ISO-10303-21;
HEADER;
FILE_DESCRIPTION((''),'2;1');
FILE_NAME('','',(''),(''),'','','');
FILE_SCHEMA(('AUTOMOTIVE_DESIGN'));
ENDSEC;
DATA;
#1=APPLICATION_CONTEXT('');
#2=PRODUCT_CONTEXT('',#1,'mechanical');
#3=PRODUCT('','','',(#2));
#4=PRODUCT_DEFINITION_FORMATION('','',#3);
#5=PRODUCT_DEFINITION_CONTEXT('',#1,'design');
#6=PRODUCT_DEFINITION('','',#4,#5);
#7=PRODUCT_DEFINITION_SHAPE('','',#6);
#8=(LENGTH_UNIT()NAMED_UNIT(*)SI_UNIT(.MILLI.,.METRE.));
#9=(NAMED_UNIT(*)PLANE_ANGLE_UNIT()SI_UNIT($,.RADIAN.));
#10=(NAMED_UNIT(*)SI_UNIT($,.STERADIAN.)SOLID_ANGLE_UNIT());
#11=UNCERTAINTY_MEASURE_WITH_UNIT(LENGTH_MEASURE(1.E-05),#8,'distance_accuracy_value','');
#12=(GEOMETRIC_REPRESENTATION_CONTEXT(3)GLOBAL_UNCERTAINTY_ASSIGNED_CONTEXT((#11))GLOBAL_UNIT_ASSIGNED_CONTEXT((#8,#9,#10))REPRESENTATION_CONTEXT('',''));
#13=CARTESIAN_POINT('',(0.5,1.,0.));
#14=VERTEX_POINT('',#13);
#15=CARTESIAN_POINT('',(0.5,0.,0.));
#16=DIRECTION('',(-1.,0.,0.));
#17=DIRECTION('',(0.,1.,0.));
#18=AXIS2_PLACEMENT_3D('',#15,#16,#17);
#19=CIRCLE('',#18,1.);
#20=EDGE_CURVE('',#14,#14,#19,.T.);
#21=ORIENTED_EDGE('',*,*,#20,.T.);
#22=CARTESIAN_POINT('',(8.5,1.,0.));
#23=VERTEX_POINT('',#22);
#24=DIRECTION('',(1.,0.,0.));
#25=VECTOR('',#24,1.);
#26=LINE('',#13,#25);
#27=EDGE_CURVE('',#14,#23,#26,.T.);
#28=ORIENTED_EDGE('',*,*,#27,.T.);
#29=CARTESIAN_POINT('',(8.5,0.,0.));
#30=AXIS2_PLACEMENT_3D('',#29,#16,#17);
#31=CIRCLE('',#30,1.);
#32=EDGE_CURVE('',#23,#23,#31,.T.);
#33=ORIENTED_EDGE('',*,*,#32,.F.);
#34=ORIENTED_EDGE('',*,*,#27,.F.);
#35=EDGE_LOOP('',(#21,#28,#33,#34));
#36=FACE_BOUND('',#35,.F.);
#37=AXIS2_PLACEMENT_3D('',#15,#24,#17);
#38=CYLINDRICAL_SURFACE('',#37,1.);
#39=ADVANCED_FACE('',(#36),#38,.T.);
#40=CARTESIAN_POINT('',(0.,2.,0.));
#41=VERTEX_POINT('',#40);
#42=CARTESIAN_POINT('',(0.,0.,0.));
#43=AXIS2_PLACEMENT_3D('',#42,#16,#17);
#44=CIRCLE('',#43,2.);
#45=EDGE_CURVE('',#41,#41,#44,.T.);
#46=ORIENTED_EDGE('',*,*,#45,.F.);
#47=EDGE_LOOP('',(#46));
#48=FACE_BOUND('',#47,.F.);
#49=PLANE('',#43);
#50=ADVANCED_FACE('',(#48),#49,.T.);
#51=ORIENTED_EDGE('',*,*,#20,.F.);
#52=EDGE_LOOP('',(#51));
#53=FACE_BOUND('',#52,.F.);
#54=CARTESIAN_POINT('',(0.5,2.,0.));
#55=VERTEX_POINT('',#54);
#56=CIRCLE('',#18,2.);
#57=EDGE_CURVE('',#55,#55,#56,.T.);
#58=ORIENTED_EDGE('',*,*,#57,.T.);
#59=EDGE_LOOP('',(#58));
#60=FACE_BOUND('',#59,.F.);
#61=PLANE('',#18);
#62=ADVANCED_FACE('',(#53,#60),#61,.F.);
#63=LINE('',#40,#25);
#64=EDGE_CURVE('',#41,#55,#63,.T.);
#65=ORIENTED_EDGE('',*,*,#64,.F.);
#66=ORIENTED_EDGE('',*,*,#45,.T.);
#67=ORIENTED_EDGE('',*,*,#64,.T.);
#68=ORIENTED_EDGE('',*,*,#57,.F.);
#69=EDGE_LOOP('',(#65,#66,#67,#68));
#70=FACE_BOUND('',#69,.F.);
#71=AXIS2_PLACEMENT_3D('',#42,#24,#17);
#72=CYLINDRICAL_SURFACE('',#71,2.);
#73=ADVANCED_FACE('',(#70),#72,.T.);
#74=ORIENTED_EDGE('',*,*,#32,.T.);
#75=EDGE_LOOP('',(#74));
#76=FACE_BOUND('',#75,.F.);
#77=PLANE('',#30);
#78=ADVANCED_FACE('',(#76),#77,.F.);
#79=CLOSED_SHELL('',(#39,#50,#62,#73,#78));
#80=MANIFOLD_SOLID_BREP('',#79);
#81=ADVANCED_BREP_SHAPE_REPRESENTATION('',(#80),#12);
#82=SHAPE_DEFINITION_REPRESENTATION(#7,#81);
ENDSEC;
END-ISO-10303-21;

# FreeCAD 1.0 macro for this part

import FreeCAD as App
import Part
import Sketcher
from FreeCAD import Vector
Q = App.Units.Quantity


def add_polygon(sketch, points):
    """Adds a closed chain of lines whose ends are joined by coincident constraints."""
    first, n = sketch.GeometryCount, len(points)
    for a, b in zip(points, points[1:] + points[:1]):
        sketch.addGeometry(Part.LineSegment(App.Vector(*a, 0), App.Vector(*b, 0)), False)
    for i in range(n):
        sketch.addConstraint(Sketcher.Constraint("Coincident", first + i, 2, first + (i + 1) % n, 1))

doc = App.newDocument("Part")
params = doc.addObject("Spreadsheet::Sheet", "Params")
for row, (alias, value) in enumerate([
    ("sketch1_width", "8 mm"),
    ("sketch1_height", "2 mm"),
    ("sketch1_width2", "0.5 mm"),
    ("revolution_angle", "360 deg"),
], start=1):
    params.set(f"A{row}", alias)
    params.set(f"B{row}", "=" + value)
    params.setAlias(f"B{row}", alias)

body = doc.addObject("PartDesign::Body", "Body")

# Sketch on XY plane
sketch1 = body.newObject("Sketcher::SketchObject", "Sketch")
sketch1.AttachmentSupport = (doc.getObject("XY_Plane"), [""])
sketch1.MapMode = "FlatFace"
add_polygon(sketch1, [(0, 2), (0, 0), (8.5, 0), (8.5, 1), (0.5, 1), (0.5, 2)])  # lines 0-5
sketch1.addConstraint([
    Sketcher.Constraint("Vertical", 0),
    Sketcher.Constraint("Horizontal", 1),
    Sketcher.Constraint("Vertical", 2),
    Sketcher.Constraint("Horizontal", 3),
    Sketcher.Constraint("Vertical", 4),
    Sketcher.Constraint("Horizontal", 5),
    Sketcher.Constraint("Coincident", 0, 2, -1, 1),
    Sketcher.Constraint("Equal", 2, 4),
    Sketcher.Constraint("DistanceX", 3, 2, 3, 1, Q("8 mm")),
    Sketcher.Constraint("DistanceY", 0, 2, 0, 1, Q("2 mm")),
    Sketcher.Constraint("DistanceX", 5, 2, 5, 1, Q("0.5 mm")),
])
sketch1.setExpression("Constraints[14]", "Params.sketch1_width")
sketch1.setExpression("Constraints[15]", "Params.sketch1_height")
sketch1.setExpression("Constraints[16]", "Params.sketch1_width2")
revolution = body.newObject("PartDesign::Revolution", "Revolution")
revolution.Profile = sketch1
revolution.ReferenceAxis = (sketch1, ["H_Axis"])
revolution.setExpression("Angle", "Params.revolution_angle")

doc.recompute()
